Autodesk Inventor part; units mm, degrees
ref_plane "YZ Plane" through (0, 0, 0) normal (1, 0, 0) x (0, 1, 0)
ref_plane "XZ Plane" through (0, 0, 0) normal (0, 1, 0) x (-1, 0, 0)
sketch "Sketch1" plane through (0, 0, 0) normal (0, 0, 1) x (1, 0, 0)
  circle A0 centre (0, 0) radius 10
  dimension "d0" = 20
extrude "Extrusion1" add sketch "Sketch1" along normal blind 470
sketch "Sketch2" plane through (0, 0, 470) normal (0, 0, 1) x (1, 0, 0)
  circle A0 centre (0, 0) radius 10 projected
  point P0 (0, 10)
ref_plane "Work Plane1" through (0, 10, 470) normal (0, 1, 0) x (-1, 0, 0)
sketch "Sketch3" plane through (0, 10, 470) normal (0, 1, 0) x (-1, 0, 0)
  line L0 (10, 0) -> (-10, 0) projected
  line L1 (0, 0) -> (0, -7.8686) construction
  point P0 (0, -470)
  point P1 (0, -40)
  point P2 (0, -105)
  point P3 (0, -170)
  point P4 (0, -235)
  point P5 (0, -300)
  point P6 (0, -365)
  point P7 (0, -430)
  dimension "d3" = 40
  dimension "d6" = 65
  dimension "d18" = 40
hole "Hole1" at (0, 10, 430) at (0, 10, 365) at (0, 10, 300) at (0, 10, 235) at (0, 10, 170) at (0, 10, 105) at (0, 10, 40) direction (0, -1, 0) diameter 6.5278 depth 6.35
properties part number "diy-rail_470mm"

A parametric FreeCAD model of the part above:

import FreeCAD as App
import Part
import Sketcher

V = App.Vector
Q = App.Units.Quantity

doc = App.newDocument("Part")
body = doc.addObject("PartDesign::Body", "Body")

sketch1 = body.newObject("Sketcher::SketchObject", "Sketch")
sketch1.AttachmentSupport = (doc.getObject("XY_Plane"), [""])
sketch1.MapMode = "FlatFace"
sketch1.addGeometry(Part.Circle(V(0, 0, 0), V(0, 0, 1), 10), False)
sketch1.addConstraint([
    Sketcher.Constraint("Coincident", 0, 3, -1, 1),
    Sketcher.Constraint("Diameter", 0, Q("0.7874 in")),
])
pad1 = body.newObject("PartDesign::Pad", "Pad")
pad1.Profile = sketch1
pad1.Length = 470

sketch2 = body.newObject("Sketcher::SketchObject", "Sketch001")
sketch2.AttachmentSupport = (doc.getObject("XZ_Plane"), [""])
sketch2.MapMode = "FlatFace"
sketch2.AttachmentOffset = App.Placement(V(0, 0, -0.3937008 * 25.4), App.Rotation())
sketch2.addGeometry([
    Part.Circle(V(0, 430, 0), V(0, 0, 1), 3.3),
    Part.Circle(V(0, 365, 0), V(0, 0, 1), 3.3),
    Part.Circle(V(0, 300, 0), V(0, 0, 1), 3.3),
    Part.Circle(V(0, 235, 0), V(0, 0, 1), 3.3),
    Part.Circle(V(0, 170, 0), V(0, 0, 1), 3.3),
    Part.Circle(V(0, 105, 0), V(0, 0, 1), 3.3),
    Part.Circle(V(0, 40, 0), V(0, 0, 1), 3.3),
], False)
sketch2.addConstraint([
    Sketcher.Constraint("Equal", 0, 1),
    Sketcher.Constraint("Equal", 1, 2),
    Sketcher.Constraint("Equal", 2, 3),
    Sketcher.Constraint("Equal", 3, 4),
    Sketcher.Constraint("Equal", 4, 5),
    Sketcher.Constraint("Equal", 5, 6),
    Sketcher.Constraint("PointOnObject", 0, 3, -2),
    Sketcher.Constraint("PointOnObject", 1, 3, -2),
    Sketcher.Constraint("PointOnObject", 2, 3, -2),
    Sketcher.Constraint("PointOnObject", 3, 3, -2),
    Sketcher.Constraint("PointOnObject", 4, 3, -2),
    Sketcher.Constraint("PointOnObject", 5, 3, -2),
    Sketcher.Constraint("PointOnObject", 6, 3, -2),
    Sketcher.Constraint("Diameter", 0, Q("0.257 in")),
    Sketcher.Constraint("DistanceY", -1, 1, 6, 3, Q("1.5748 in")),
    Sketcher.Constraint("DistanceY", 2, 3, 0, 3, Q("5.1181 in")),
    Sketcher.Constraint("DistanceY", 3, 3, 1, 3, Q("5.1181 in")),
    Sketcher.Constraint("DistanceY", 4, 3, 2, 3, Q("5.1181 in")),
    Sketcher.Constraint("DistanceY", 5, 3, 3, 3, Q("5.1181 in")),
    Sketcher.Constraint("DistanceY", 6, 3, 4, 3, Q("5.1181 in")),
    Sketcher.Constraint("DistanceY", -1, 1, 1, 3, Q("365 mm")),
])
doc.recompute()
hole = body.newObject("PartDesign::Hole", "Hole")
hole.Profile = sketch2
hole.ThreadType = "None"
hole.Diameter = Q("0.257 in")
hole.DepthType = "Dimension"
hole.Depth = Q("0.25 in")
hole.DrillPoint = "Flat"
hole.Reversed = True

doc.recompute()
